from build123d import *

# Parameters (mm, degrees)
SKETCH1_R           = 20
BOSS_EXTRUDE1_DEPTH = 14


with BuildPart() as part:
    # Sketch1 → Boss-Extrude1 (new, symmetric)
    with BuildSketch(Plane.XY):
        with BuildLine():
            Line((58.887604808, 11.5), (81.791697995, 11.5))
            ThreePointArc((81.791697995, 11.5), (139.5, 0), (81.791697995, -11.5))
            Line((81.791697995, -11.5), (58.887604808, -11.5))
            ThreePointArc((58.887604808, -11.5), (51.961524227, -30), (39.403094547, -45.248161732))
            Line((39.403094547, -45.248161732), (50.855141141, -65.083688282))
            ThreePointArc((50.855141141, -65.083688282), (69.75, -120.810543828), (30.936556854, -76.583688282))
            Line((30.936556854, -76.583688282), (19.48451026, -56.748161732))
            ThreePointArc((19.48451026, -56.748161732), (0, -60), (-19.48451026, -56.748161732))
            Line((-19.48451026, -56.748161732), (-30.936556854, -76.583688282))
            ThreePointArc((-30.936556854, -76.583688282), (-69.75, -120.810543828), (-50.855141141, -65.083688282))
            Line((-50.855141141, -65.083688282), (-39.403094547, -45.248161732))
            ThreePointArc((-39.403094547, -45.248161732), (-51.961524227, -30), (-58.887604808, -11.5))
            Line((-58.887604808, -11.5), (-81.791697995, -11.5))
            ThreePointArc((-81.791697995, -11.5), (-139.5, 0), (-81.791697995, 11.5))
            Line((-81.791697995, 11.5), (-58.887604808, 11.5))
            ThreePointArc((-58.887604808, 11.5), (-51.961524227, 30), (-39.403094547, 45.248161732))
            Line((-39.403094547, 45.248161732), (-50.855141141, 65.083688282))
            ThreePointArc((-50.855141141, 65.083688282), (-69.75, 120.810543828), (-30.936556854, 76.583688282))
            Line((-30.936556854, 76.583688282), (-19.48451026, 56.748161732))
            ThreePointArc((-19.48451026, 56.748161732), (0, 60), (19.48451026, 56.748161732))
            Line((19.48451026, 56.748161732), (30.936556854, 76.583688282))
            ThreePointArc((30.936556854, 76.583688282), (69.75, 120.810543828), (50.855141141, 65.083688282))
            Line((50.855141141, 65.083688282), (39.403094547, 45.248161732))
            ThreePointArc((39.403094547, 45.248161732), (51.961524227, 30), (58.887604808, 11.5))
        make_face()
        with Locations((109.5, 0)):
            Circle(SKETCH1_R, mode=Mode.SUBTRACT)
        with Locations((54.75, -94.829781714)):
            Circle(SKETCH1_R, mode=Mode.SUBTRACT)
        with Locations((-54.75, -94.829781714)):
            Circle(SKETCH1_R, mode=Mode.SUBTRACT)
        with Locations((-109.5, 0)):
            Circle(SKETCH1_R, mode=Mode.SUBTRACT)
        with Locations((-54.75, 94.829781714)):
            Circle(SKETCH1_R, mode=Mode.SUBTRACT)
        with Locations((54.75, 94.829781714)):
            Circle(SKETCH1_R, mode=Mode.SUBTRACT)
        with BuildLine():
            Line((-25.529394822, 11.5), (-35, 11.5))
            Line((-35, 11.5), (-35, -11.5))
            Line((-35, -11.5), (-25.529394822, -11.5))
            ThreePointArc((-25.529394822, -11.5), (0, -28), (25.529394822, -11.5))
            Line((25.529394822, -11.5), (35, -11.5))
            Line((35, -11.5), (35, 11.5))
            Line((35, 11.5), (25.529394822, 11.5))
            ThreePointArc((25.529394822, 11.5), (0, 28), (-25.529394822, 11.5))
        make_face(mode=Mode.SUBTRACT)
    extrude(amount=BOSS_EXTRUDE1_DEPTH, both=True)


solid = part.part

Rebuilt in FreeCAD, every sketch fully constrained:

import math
import FreeCAD as App
import Part
import Sketcher

V = App.Vector
Q = App.Units.Quantity

doc = App.newDocument("Part")
body = doc.addObject("PartDesign::Body", "Body")

# Sketch on XY plane
sketch1 = body.newObject("Sketcher::SketchObject", "Sketch")
sketch1.AttachmentSupport = (doc.getObject("XY_Plane"), [""])
sketch1.MapMode = "FlatFace"
sketch1.addGeometry([
    Part.LineSegment(V(82, 12, 0), V(59, 12, 0)),  # 0
    Part.ArcOfCircle(Part.Circle(V(0, 0, 0), V(0, 0, 1), 60), math.radians(11), math.radians(49)),  # 1
    Part.LineSegment(V(39, 45, 0), V(51, 65, 0)),  # 2
    Part.ArcOfCircle(Part.Circle(V(55, 95, 0), V(0, 0, 1), 30), math.radians(-97), math.radians(217)),  # 3
    Part.LineSegment(V(31, 77, 0), V(19, 57, 0)),  # 4
    Part.ArcOfCircle(Part.Circle(V(0, 0, 0), V(0, 0, 1), 60), math.radians(71), math.radians(109)),  # 5
    Part.LineSegment(V(-19, 57, 0), V(-31, 77, 0)),  # 6
    Part.ArcOfCircle(Part.Circle(V(-55, 95, 0), V(0, 0, 1), 30), math.radians(-37), math.radians(277)),  # 7
    Part.LineSegment(V(-51, 65, 0), V(-39, 45, 0)),  # 8
    Part.ArcOfCircle(Part.Circle(V(0, 0, 0), V(0, 0, 1), 60), math.radians(131), math.radians(169)),  # 9
    Part.LineSegment(V(-59, 12, 0), V(-82, 12, 0)),  # 10
    Part.ArcOfCircle(Part.Circle(V(-110, 0, 0), V(0, 0, 1), 30), math.radians(23), math.radians(337)),  # 11
    Part.LineSegment(V(-82, -12, 0), V(-59, -12, 0)),  # 12
    Part.ArcOfCircle(Part.Circle(V(0, 0, 0), V(0, 0, 1), 60), math.radians(-169), math.radians(-131)),  # 13
    Part.LineSegment(V(-39, -45, 0), V(-51, -65, 0)),  # 14
    Part.ArcOfCircle(Part.Circle(V(-55, -95, 0), V(0, 0, 1), 30), math.radians(83), math.radians(397)),  # 15
    Part.LineSegment(V(-31, -77, 0), V(-19, -57, 0)),  # 16
    Part.ArcOfCircle(Part.Circle(V(0, 0, 0), V(0, 0, 1), 60), math.radians(-109), math.radians(-71)),  # 17
    Part.LineSegment(V(19, -57, 0), V(31, -77, 0)),  # 18
    Part.ArcOfCircle(Part.Circle(V(55, -95, 0), V(0, 0, 1), 30), math.radians(143), math.radians(457)),  # 19
    Part.LineSegment(V(51, -65, 0), V(39, -45, 0)),  # 20
    Part.ArcOfCircle(Part.Circle(V(0, 0, 0), V(0, 0, 1), 60), math.radians(-49), math.radians(-11)),  # 21
    Part.LineSegment(V(59, -12, 0), V(82, -12, 0)),  # 22
    Part.ArcOfCircle(Part.Circle(V(110, 0, 0), V(0, 0, 1), 30), math.radians(-157), math.radians(157)),  # 23
    Part.Circle(V(55, -95, 0), V(0, 0, 1), 20),  # 24
    Part.Circle(V(110, 0, 0), V(0, 0, 1), 20),  # 25
    Part.Circle(V(-55, -95, 0), V(0, 0, 1), 20),  # 26
    Part.ArcOfCircle(Part.Circle(V(0, 0, 0), V(0, 0, 1), 28), math.radians(24), math.radians(156)),  # 27
    Part.LineSegment(V(26, 12, 0), V(35, 12, 0)),  # 28
    Part.LineSegment(V(35, 12, 0), V(35, -12, 0)),  # 29
    Part.LineSegment(V(35, -12, 0), V(26, -12, 0)),  # 30
    Part.ArcOfCircle(Part.Circle(V(0, 0, 0), V(0, 0, 1), 28), math.radians(-156), math.radians(-24)),  # 31
    Part.LineSegment(V(-26, -12, 0), V(-35, -12, 0)),  # 32
    Part.LineSegment(V(-35, -12, 0), V(-35, 12, 0)),  # 33
    Part.LineSegment(V(-35, 12, 0), V(-26, 12, 0)),  # 34
    Part.Circle(V(-110, 0, 0), V(0, 0, 1), 20),  # 35
    Part.Circle(V(55, 95, 0), V(0, 0, 1), 20),  # 36
    Part.Circle(V(-55, 95, 0), V(0, 0, 1), 20),  # 37
], False)
sketch1.addConstraint([
    Sketcher.Constraint("Coincident", 0, 2, 1, 1),
    Sketcher.Constraint("Coincident", 1, 2, 2, 1),
    Sketcher.Constraint("Coincident", 2, 2, 3, 1),
    Sketcher.Constraint("Coincident", 3, 2, 4, 1),
    Sketcher.Constraint("Coincident", 4, 2, 5, 1),
    Sketcher.Constraint("Coincident", 5, 2, 6, 1),
    Sketcher.Constraint("Coincident", 6, 2, 7, 1),
    Sketcher.Constraint("Coincident", 7, 2, 8, 1),
    Sketcher.Constraint("Coincident", 8, 2, 9, 1),
    Sketcher.Constraint("Coincident", 9, 2, 10, 1),
    Sketcher.Constraint("Coincident", 10, 2, 11, 1),
    Sketcher.Constraint("Coincident", 11, 2, 12, 1),
    Sketcher.Constraint("Coincident", 12, 2, 13, 1),
    Sketcher.Constraint("Coincident", 13, 2, 14, 1),
    Sketcher.Constraint("Coincident", 14, 2, 15, 1),
    Sketcher.Constraint("Coincident", 15, 2, 16, 1),
    Sketcher.Constraint("Coincident", 16, 2, 17, 1),
    Sketcher.Constraint("Coincident", 17, 2, 18, 1),
    Sketcher.Constraint("Coincident", 18, 2, 19, 1),
    Sketcher.Constraint("Coincident", 19, 2, 20, 1),
    Sketcher.Constraint("Coincident", 20, 2, 21, 1),
    Sketcher.Constraint("Coincident", 21, 2, 22, 1),
    Sketcher.Constraint("Coincident", 22, 2, 23, 1),
    Sketcher.Constraint("Coincident", 23, 2, 0, 1),
    Sketcher.Constraint("Coincident", 27, 1, 28, 1),
    Sketcher.Constraint("Coincident", 28, 2, 29, 1),
    Sketcher.Constraint("Coincident", 29, 2, 30, 1),
    Sketcher.Constraint("Coincident", 30, 2, 31, 2),
    Sketcher.Constraint("Coincident", 31, 1, 32, 1),
    Sketcher.Constraint("Coincident", 32, 2, 33, 1),
    Sketcher.Constraint("Coincident", 33, 2, 34, 1),
    Sketcher.Constraint("Coincident", 34, 2, 27, 2),
    Sketcher.Constraint("Horizontal", 0),
    Sketcher.Constraint("Horizontal", 10),
    Sketcher.Constraint("Horizontal", 12),
    Sketcher.Constraint("Horizontal", 22),
    Sketcher.Constraint("Horizontal", 28),
    Sketcher.Constraint("Vertical", 29),
    Sketcher.Constraint("Horizontal", 30),
    Sketcher.Constraint("Horizontal", 32),
    Sketcher.Constraint("Vertical", 33),
    Sketcher.Constraint("Horizontal", 34),
    Sketcher.Constraint("Coincident", 1, 3, -1, 1),
    Sketcher.Constraint("Coincident", 5, 3, -1, 1),
    Sketcher.Constraint("Coincident", 9, 3, -1, 1),
    Sketcher.Constraint("Coincident", 13, 3, -1, 1),
    Sketcher.Constraint("Coincident", 17, 3, -1, 1),
    Sketcher.Constraint("Coincident", 21, 3, -1, 1),
    Sketcher.Constraint("Coincident", 27, 3, -1, 1),
    Sketcher.Constraint("Coincident", 31, 3, -1, 1),
    Sketcher.Constraint("Coincident", 24, 3, 19, 3),
    Sketcher.Constraint("Coincident", 25, 3, 23, 3),
    Sketcher.Constraint("Coincident", 26, 3, 15, 3),
    Sketcher.Constraint("Coincident", 35, 3, 11, 3),
    Sketcher.Constraint("Coincident", 36, 3, 3, 3),
    Sketcher.Constraint("Coincident", 37, 3, 7, 3),
    Sketcher.Constraint("Equal", 1, 5),
    Sketcher.Constraint("Equal", 3, 7),
    Sketcher.Constraint("Equal", 5, 9),
    Sketcher.Constraint("Equal", 7, 11),
    Sketcher.Constraint("Equal", 9, 13),
    Sketcher.Constraint("Equal", 11, 15),
    Sketcher.Constraint("Equal", 13, 17),
    Sketcher.Constraint("Equal", 15, 19),
    Sketcher.Constraint("Equal", 17, 21),
    Sketcher.Constraint("Equal", 19, 23),
    Sketcher.Constraint("Equal", 24, 25),
    Sketcher.Constraint("Equal", 25, 26),
    Sketcher.Constraint("Equal", 27, 31),
    Sketcher.Constraint("Equal", 26, 35),
    Sketcher.Constraint("Equal", 35, 36),
    Sketcher.Constraint("Equal", 36, 37),
    Sketcher.Constraint("Symmetric", 3, 3, 15, 3, -1, 1),
    Sketcher.Constraint("Symmetric", 7, 3, 19, 3, -1, 1),
    Sketcher.Constraint("Symmetric", 11, 3, 23, 3, -1, 1),
    Sketcher.Constraint("Symmetric", 28, 2, 32, 2, -1, 1),
    Sketcher.Constraint("Symmetric", 3, 3, 7, 3, -2),
    Sketcher.Constraint("Symmetric", 11, 2, 22, 2, -2),
    Sketcher.Constraint("Parallel", 2, 4),
    Sketcher.Constraint("Parallel", 6, 8),
    Sketcher.Constraint("Parallel", 4, 14),
    Sketcher.Constraint("Parallel", 14, 16),
    Sketcher.Constraint("Parallel", 8, 18),
    Sketcher.Constraint("Parallel", 18, 20),
    Sketcher.Constraint("Horizontal", 4, 2, 5, 2),
    Sketcher.Constraint("Horizontal", 3, 2, 6, 2),
    Sketcher.Constraint("Horizontal", 2, 2, 7, 2),
    Sketcher.Constraint("Horizontal", 0, 2, 9, 2),
    Sketcher.Constraint("Horizontal", 16, 2, 17, 2),
    Sketcher.Constraint("Horizontal", 14, 2, 19, 2),
    Sketcher.Constraint("Horizontal", 23, 2, 27, 1),
    Sketcher.Constraint("Horizontal", 22, 2, 29, 2),
    Sketcher.Constraint("Horizontal", 30, 2, 31, 1),
    Sketcher.Constraint("Horizontal", 28, 2, 33, 2),
    Sketcher.Constraint("Vertical", 8, 2, 13, 2),
    Sketcher.Constraint("Vertical", 6, 2, 15, 2),
    Sketcher.Constraint("Equal", 2, 4),
    Sketcher.Constraint("Diameter", 24, 40.0),
    Sketcher.Constraint("Radius", 1, 60.0),
    Sketcher.Constraint("Radius", 3, 30.0),
    Sketcher.Constraint("Radius", 27, 28.0),
    Sketcher.Constraint("DistanceY", 29, 2, 29, 1, 23.0),
    Sketcher.Constraint("Angle", 2, Q("60 deg")),
    Sketcher.Constraint("DistanceX", -1, 1, 28, 2, 35.0),
    Sketcher.Constraint("DistanceX", 11, 3, -1, 1, 109.5),
    Sketcher.Constraint("DistanceX", 7, 3, 3, 3, 109.5),
    Sketcher.Constraint("DistanceY", 2, 2, 3, 2, 11.5),
    Sketcher.Constraint("DistanceY", -1, 1, 3, 3, 94.829782),
])
pad1 = body.newObject("PartDesign::Pad", "Pad")
pad1.Profile = sketch1
pad1.Length = 28
pad1.Midplane = True

doc.recompute()
